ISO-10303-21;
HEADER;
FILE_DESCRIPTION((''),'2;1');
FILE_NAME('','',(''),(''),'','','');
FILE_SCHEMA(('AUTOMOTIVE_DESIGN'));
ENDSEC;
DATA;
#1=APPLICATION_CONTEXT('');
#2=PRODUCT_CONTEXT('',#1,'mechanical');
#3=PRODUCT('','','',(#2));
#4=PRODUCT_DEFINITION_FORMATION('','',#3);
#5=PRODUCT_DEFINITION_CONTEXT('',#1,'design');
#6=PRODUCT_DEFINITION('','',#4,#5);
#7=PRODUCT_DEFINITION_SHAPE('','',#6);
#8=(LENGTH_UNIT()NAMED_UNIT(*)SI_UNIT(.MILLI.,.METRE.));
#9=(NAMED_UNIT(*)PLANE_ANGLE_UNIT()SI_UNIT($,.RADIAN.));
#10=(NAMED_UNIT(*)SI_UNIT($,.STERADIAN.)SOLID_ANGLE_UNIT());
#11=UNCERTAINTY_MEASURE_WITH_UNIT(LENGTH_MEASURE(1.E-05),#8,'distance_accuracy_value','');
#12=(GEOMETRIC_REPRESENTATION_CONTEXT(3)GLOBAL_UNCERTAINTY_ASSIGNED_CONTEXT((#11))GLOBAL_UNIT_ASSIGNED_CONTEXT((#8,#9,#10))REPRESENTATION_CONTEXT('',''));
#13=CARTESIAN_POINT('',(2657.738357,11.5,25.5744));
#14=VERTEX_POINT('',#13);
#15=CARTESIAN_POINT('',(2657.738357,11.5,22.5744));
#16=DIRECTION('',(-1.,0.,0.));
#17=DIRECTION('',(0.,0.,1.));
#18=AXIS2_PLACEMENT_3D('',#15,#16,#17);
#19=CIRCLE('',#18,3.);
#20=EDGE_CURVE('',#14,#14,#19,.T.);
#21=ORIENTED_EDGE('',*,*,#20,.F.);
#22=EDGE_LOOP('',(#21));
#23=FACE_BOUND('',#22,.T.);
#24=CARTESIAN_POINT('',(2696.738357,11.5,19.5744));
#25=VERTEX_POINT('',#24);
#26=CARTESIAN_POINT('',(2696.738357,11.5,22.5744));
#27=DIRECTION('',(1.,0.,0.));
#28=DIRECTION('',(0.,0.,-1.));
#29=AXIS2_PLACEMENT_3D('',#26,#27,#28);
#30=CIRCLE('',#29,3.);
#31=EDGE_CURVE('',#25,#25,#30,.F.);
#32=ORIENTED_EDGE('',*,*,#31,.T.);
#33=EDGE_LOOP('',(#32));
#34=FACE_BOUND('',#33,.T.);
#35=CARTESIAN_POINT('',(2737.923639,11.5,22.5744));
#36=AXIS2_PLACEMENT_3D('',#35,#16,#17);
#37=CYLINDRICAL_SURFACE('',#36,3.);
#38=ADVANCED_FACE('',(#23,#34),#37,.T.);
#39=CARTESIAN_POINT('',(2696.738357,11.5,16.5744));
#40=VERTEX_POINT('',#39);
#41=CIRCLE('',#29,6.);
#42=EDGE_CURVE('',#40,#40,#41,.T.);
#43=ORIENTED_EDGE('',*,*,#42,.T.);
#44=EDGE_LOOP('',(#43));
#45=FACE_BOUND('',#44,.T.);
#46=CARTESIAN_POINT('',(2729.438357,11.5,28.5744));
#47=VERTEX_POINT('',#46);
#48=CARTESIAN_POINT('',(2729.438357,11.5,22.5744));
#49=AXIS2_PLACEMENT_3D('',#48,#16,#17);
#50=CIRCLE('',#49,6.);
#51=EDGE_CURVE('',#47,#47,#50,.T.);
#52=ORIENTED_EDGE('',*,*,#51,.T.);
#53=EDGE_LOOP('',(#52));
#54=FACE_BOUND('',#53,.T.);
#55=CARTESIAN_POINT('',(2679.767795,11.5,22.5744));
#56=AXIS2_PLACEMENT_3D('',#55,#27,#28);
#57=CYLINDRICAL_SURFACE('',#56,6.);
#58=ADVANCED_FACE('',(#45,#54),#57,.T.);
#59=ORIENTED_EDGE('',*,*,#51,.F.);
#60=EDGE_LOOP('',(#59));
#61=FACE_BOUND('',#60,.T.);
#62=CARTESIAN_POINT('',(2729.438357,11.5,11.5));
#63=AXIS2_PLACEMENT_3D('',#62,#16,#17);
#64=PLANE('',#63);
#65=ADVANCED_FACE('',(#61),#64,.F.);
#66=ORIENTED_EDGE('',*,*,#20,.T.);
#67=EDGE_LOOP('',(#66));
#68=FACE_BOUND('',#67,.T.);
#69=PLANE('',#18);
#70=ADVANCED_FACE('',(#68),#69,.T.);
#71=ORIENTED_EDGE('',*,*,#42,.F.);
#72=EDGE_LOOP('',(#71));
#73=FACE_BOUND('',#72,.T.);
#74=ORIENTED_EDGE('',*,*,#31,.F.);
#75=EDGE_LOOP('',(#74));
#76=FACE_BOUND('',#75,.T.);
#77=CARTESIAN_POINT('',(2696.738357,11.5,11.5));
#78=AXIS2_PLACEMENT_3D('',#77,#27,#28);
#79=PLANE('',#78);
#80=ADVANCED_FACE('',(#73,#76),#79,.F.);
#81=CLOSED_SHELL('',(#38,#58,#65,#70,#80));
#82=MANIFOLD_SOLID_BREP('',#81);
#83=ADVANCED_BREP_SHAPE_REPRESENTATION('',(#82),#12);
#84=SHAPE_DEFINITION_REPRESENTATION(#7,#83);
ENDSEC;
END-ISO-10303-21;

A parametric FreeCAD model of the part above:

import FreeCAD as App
import Part
import Sketcher

V = App.Vector
Q = App.Units.Quantity

doc = App.newDocument("Part")
body = doc.addObject("PartDesign::Body", "Body")

# Sketch on YZ plane
sketch1 = doc.addObject("Sketcher::SketchObject", "Sketch")
body.addObject(sketch1)
sketch1.AttachmentSupport = (doc.YZ_Plane, [""])
sketch1.MapMode = "FlatFace"
sketch1.AttachmentOffset = App.Placement(V(0, 0, 2657.738357), App.Rotation())
sketch1.addGeometry(Part.Circle(V(11.5, 22.6, 0), V(0, 0, 1), 3), False)
sketch1.addConstraint(Sketcher.Constraint("Diameter", 0, Q("6 mm")))
sketch1.addConstraint(Sketcher.Constraint("DistanceX", -1, 1, 0, 3, Q("11.5 mm")))
sketch1.addConstraint(Sketcher.Constraint("DistanceY", -1, 1, 0, 3, Q("22.5744 mm")))
pad1 = doc.addObject("PartDesign::Pad", "Pad")
body.addObject(pad1)
pad1.Profile = sketch1
pad1.Length = 71.7

# Sketch on YZ plane
sketch2 = doc.addObject("Sketcher::SketchObject", "Sketch001")
body.addObject(sketch2)
sketch2.AttachmentSupport = (doc.YZ_Plane, [""])
sketch2.MapMode = "FlatFace"
sketch2.AttachmentOffset = App.Placement(V(0, 0, 2729.438357), App.Rotation())
sketch2.addGeometry(Part.Circle(V(12, 23, 0), V(0, 0, 1), 6), False)
sketch2.addConstraint(Sketcher.Constraint("Diameter", 0, Q("12 mm")))
sketch2.addConstraint(Sketcher.Constraint("DistanceX", -1, 1, 0, 3, Q("11.5 mm")))
sketch2.addConstraint(Sketcher.Constraint("DistanceY", -1, 1, 0, 3, Q("22.5744 mm")))
pad2 = doc.addObject("PartDesign::Pad", "Pad001")
body.addObject(pad2)
pad2.Profile = sketch2
pad2.Length = 32.7
pad2.Reversed = True

doc.recompute()
